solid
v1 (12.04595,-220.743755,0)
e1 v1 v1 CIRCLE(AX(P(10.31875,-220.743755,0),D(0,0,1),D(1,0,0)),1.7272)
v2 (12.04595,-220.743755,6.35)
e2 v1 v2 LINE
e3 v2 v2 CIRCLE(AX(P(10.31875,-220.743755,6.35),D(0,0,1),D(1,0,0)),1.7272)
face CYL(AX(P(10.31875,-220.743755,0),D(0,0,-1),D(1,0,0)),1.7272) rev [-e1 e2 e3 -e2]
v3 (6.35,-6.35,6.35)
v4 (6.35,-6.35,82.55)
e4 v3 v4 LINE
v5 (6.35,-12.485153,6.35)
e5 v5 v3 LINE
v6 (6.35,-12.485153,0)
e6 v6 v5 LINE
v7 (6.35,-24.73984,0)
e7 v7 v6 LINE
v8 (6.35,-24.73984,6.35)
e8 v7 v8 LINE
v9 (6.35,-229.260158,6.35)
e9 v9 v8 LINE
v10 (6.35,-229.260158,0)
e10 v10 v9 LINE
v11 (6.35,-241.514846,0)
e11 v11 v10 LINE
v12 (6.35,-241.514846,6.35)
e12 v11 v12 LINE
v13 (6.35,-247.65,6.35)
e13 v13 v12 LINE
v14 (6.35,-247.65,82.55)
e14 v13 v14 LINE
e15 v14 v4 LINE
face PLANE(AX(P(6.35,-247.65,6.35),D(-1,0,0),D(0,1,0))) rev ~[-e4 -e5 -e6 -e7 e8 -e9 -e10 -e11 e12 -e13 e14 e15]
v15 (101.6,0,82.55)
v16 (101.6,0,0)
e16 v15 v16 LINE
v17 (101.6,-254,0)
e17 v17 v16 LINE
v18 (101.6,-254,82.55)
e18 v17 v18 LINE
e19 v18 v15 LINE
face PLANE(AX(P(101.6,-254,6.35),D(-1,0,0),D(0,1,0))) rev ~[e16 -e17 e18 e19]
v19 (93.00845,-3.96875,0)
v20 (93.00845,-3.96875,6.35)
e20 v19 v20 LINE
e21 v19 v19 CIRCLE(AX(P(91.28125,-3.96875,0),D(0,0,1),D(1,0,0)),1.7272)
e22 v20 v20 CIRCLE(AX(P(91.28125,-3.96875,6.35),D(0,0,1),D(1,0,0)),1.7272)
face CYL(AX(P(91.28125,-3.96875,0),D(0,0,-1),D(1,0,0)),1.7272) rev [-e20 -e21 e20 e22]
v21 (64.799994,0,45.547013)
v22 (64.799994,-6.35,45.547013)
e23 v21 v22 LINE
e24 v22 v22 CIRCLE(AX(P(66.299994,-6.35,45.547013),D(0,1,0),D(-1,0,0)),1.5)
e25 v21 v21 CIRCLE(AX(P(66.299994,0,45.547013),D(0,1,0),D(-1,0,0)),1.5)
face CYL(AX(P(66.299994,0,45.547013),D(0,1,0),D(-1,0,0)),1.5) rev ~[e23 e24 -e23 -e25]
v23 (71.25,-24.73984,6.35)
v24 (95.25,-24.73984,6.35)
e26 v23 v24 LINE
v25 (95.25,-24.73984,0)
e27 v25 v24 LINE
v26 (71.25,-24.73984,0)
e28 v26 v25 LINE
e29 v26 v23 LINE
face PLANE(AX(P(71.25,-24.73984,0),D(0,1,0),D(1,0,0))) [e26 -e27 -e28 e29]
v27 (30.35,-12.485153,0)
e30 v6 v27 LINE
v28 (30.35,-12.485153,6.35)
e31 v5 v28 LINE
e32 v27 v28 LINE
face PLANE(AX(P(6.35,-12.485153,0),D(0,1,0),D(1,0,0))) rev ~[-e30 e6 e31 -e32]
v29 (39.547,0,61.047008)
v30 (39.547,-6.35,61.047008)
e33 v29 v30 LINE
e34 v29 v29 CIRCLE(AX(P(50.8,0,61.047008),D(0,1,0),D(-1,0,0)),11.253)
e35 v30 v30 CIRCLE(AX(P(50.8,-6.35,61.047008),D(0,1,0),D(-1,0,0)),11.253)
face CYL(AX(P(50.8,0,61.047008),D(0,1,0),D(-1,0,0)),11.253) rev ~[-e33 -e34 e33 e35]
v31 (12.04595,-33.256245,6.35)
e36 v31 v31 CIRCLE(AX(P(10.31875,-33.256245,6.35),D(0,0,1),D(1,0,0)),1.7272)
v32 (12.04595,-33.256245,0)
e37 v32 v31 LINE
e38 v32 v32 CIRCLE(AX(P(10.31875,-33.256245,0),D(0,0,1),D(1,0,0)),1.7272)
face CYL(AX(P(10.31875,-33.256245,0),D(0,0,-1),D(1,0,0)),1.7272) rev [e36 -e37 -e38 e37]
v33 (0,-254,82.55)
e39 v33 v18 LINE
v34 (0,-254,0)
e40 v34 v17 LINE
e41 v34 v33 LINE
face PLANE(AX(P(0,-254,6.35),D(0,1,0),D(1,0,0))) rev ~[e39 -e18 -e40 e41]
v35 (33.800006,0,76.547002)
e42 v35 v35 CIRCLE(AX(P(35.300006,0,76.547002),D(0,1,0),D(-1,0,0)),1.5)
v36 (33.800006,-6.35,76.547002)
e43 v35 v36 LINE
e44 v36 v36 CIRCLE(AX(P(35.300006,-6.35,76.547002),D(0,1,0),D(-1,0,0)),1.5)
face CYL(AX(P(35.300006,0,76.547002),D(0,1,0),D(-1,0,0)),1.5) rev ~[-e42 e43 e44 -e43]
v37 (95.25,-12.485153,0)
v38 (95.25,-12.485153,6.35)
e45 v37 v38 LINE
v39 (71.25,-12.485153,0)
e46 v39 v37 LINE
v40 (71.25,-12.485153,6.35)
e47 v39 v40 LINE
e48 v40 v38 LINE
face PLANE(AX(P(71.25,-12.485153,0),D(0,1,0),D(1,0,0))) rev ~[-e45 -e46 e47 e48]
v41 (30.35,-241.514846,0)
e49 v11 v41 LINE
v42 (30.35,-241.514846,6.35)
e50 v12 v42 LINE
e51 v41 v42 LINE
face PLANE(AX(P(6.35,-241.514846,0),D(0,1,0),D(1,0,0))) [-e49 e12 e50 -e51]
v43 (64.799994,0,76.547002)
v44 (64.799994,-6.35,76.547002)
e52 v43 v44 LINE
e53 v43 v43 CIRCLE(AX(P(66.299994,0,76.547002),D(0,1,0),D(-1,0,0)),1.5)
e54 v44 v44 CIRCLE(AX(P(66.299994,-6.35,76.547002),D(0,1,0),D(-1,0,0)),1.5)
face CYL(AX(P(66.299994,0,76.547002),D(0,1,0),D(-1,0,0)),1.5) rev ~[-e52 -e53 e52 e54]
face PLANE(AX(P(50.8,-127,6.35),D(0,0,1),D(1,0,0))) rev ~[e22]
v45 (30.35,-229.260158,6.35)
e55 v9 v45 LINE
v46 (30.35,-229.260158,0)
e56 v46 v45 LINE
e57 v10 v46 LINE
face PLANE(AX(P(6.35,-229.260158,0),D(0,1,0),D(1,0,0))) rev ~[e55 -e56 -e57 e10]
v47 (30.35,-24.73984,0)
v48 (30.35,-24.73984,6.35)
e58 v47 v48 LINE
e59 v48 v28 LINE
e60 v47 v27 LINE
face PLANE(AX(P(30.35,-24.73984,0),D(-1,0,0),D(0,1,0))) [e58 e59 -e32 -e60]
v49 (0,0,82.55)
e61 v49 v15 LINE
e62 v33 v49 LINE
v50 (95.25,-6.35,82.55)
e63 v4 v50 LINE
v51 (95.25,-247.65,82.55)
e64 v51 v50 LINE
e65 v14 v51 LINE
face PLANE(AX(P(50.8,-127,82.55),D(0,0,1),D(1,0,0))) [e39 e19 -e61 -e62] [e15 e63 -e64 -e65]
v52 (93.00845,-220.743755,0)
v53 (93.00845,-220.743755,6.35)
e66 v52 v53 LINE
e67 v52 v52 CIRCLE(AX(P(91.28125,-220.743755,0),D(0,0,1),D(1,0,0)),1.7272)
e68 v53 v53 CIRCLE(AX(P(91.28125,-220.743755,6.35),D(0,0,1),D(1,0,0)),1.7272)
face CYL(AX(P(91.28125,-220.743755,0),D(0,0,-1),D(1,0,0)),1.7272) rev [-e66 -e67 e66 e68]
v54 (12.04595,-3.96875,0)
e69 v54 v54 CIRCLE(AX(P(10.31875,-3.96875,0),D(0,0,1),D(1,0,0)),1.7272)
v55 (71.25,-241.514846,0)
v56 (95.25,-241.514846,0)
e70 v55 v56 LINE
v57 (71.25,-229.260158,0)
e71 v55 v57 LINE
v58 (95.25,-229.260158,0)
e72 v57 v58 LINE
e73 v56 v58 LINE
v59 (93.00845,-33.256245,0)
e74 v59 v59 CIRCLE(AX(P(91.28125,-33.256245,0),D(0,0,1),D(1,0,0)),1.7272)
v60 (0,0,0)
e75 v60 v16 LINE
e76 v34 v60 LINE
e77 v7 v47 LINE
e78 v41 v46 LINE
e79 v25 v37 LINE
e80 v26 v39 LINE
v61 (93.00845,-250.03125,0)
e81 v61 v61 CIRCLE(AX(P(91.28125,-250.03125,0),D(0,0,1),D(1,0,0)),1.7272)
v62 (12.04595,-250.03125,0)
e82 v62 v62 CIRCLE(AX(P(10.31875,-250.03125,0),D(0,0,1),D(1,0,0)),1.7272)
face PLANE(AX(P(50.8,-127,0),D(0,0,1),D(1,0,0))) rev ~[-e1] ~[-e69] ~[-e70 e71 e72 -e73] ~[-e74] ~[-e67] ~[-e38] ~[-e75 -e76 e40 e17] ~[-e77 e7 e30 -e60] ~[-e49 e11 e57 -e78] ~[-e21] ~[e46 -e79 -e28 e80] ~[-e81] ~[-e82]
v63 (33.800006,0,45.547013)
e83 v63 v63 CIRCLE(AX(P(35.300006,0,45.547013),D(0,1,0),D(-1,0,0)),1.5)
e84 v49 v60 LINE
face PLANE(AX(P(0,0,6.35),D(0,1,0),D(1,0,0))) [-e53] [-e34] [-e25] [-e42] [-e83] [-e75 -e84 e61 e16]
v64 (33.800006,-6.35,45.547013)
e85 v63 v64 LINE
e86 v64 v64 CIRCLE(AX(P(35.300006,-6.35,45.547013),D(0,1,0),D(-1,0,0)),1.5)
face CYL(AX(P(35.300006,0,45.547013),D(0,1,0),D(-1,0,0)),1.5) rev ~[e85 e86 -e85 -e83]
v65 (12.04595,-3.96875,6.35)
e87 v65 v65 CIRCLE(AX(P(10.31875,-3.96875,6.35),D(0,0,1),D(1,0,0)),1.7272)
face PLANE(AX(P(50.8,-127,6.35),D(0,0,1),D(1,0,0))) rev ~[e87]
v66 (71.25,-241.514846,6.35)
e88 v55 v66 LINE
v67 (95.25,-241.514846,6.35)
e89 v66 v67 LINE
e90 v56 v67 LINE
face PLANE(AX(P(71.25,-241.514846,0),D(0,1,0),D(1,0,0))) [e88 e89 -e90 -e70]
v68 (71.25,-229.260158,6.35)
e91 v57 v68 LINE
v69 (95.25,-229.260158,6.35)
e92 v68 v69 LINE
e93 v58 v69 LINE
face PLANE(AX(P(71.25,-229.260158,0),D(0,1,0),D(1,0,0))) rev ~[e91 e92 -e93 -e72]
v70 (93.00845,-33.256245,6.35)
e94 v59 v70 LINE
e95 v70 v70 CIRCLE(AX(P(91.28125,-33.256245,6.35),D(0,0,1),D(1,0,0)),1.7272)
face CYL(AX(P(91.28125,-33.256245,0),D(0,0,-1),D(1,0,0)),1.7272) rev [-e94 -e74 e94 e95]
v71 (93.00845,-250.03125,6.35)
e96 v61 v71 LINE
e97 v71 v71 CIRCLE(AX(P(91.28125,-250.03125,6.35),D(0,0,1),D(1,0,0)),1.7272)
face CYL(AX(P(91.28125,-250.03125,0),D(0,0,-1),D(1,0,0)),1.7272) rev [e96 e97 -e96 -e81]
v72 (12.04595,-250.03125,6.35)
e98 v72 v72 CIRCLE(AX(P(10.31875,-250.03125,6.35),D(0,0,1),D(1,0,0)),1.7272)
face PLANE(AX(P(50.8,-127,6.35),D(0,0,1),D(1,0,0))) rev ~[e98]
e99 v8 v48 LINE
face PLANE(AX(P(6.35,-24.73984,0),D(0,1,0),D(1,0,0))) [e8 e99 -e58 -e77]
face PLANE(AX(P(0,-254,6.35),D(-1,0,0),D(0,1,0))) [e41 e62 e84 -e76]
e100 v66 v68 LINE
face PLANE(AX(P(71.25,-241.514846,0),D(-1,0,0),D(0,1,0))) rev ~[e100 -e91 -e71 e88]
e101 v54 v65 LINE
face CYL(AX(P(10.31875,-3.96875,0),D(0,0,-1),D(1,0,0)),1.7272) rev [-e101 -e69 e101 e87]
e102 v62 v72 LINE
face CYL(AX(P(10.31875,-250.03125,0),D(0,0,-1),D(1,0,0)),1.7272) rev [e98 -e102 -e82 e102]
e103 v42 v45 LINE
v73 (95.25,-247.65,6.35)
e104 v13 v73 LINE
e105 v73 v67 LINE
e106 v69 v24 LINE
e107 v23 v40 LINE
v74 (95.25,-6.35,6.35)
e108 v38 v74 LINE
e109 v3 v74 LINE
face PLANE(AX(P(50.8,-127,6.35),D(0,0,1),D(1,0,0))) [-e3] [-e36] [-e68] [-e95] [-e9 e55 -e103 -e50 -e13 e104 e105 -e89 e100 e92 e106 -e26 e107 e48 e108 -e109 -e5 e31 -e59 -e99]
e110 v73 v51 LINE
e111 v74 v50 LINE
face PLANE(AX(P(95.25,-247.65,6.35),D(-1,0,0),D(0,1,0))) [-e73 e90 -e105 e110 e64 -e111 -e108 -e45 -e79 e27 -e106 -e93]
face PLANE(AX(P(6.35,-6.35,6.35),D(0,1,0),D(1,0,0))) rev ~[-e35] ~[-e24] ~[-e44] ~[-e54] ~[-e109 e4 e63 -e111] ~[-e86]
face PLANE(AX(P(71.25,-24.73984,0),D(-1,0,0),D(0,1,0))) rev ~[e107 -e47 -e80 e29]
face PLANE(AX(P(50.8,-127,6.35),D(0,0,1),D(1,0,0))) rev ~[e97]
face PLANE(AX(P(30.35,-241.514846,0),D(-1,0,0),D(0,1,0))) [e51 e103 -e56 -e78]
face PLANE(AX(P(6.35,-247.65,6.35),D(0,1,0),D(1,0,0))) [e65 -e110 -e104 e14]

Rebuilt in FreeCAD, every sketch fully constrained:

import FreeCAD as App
import Part
import Sketcher
from FreeCAD import Vector
Q = App.Units.Quantity


def add_polygon(sketch, points):
    """Adds a closed chain of lines whose ends are joined by coincident constraints."""
    first, n = sketch.GeometryCount, len(points)
    for a, b in zip(points, points[1:] + points[:1]):
        sketch.addGeometry(Part.LineSegment(App.Vector(*a, 0), App.Vector(*b, 0)), False)
    for i in range(n):
        sketch.addConstraint(Sketcher.Constraint("Coincident", first + i, 2, first + (i + 1) % n, 1))

doc = App.newDocument("Part")
body = doc.addObject("PartDesign::Body", "Body")

# Sketch on XY plane
sketch1 = body.newObject("Sketcher::SketchObject", "Sketch")
sketch1.AttachmentSupport = (doc.getObject("XY_Plane"), [""])
sketch1.MapMode = "FlatFace"
add_polygon(sketch1, [(0, 0), (0, -254), (101.6, -254), (101.6, 0)])  # lines 0-3
sketch1.addGeometry(Part.Circle(Vector(10.3, -250, 0), Vector(0, 0, 1), 1.7), False)  # 4
sketch1.addGeometry(Part.Circle(Vector(10.3, -220.7, 0), Vector(0, 0, 1), 1.7), False)  # 5
add_polygon(sketch1, [(30.4, -241.5), (6.3, -241.5), (6.3, -229.3), (30.4, -229.3)])  # lines 6-9
add_polygon(sketch1, [(95.2, -241.5), (71.2, -241.5), (71.2, -229.3), (95.2, -229.3)])  # lines 10-13
sketch1.addGeometry(Part.Circle(Vector(91.3, -250, 0), Vector(0, 0, 1), 1.7), False)  # 14
sketch1.addGeometry(Part.Circle(Vector(91.3, -220.7, 0), Vector(0, 0, 1), 1.7), False)  # 15
sketch1.addGeometry(Part.Circle(Vector(10.3, -33.3, 0), Vector(0, 0, 1), 1.7), False)  # 16
sketch1.addGeometry(Part.Circle(Vector(10.3, -4, 0), Vector(0, 0, 1), 1.7), False)  # 17
add_polygon(sketch1, [(30.4, -24.7), (6.3, -24.7), (6.3, -12.5), (30.4, -12.5)])  # lines 18-21
add_polygon(sketch1, [(95.2, -24.7), (71.2, -24.7), (71.2, -12.5), (95.2, -12.5)])  # lines 22-25
sketch1.addGeometry(Part.Circle(Vector(91.3, -33.3, 0), Vector(0, 0, 1), 1.7), False)  # 26
sketch1.addGeometry(Part.Circle(Vector(91.3, -4, 0), Vector(0, 0, 1), 1.7), False)  # 27
sketch1.addConstraint(Sketcher.Constraint("Vertical", 0))
sketch1.addConstraint(Sketcher.Constraint("Horizontal", 1))
sketch1.addConstraint(Sketcher.Constraint("Vertical", 2))
sketch1.addConstraint(Sketcher.Constraint("Horizontal", 3))
sketch1.addConstraint(Sketcher.Constraint("Horizontal", 6))
sketch1.addConstraint(Sketcher.Constraint("Vertical", 7))
sketch1.addConstraint(Sketcher.Constraint("Horizontal", 8))
sketch1.addConstraint(Sketcher.Constraint("Vertical", 9))
sketch1.addConstraint(Sketcher.Constraint("Horizontal", 10))
sketch1.addConstraint(Sketcher.Constraint("Vertical", 11))
sketch1.addConstraint(Sketcher.Constraint("Horizontal", 12))
sketch1.addConstraint(Sketcher.Constraint("Vertical", 13))
sketch1.addConstraint(Sketcher.Constraint("Horizontal", 18))
sketch1.addConstraint(Sketcher.Constraint("Vertical", 19))
sketch1.addConstraint(Sketcher.Constraint("Horizontal", 20))
sketch1.addConstraint(Sketcher.Constraint("Vertical", 21))
sketch1.addConstraint(Sketcher.Constraint("Horizontal", 22))
sketch1.addConstraint(Sketcher.Constraint("Vertical", 23))
sketch1.addConstraint(Sketcher.Constraint("Horizontal", 24))
sketch1.addConstraint(Sketcher.Constraint("Vertical", 25))
sketch1.addConstraint(Sketcher.Constraint("Coincident", 3, 2, -1, 1))
sketch1.addConstraint(Sketcher.Constraint("Equal", 4, 5))
sketch1.addConstraint(Sketcher.Constraint("Equal", 5, 14))
sketch1.addConstraint(Sketcher.Constraint("Equal", 14, 15))
sketch1.addConstraint(Sketcher.Constraint("Equal", 15, 16))
sketch1.addConstraint(Sketcher.Constraint("Equal", 16, 17))
sketch1.addConstraint(Sketcher.Constraint("Equal", 17, 26))
sketch1.addConstraint(Sketcher.Constraint("Equal", 26, 27))
sketch1.addConstraint(Sketcher.Constraint("Horizontal", 4, 3, 14, 3))
sketch1.addConstraint(Sketcher.Constraint("Horizontal", 5, 3, 15, 3))
sketch1.addConstraint(Sketcher.Constraint("Horizontal", 16, 3, 26, 3))
sketch1.addConstraint(Sketcher.Constraint("Horizontal", 17, 3, 27, 3))
sketch1.addConstraint(Sketcher.Constraint("Horizontal", 9, 2, 10, 2))
sketch1.addConstraint(Sketcher.Constraint("Horizontal", 8, 2, 11, 2))
sketch1.addConstraint(Sketcher.Constraint("Horizontal", 21, 2, 22, 2))
sketch1.addConstraint(Sketcher.Constraint("Horizontal", 20, 2, 23, 2))
sketch1.addConstraint(Sketcher.Constraint("Vertical", 4, 3, 5, 3))
sketch1.addConstraint(Sketcher.Constraint("Vertical", 14, 3, 15, 3))
sketch1.addConstraint(Sketcher.Constraint("Vertical", 5, 3, 16, 3))
sketch1.addConstraint(Sketcher.Constraint("Vertical", 16, 3, 17, 3))
sketch1.addConstraint(Sketcher.Constraint("Vertical", 15, 3, 26, 3))
sketch1.addConstraint(Sketcher.Constraint("Vertical", 26, 3, 27, 3))
sketch1.addConstraint(Sketcher.Constraint("Vertical", 7, 2, 18, 2))
sketch1.addConstraint(Sketcher.Constraint("Vertical", 9, 2, 20, 2))
sketch1.addConstraint(Sketcher.Constraint("Vertical", 11, 2, 22, 2))
sketch1.addConstraint(Sketcher.Constraint("Vertical", 13, 2, 24, 2))
sketch1.addConstraint(Sketcher.Constraint("Equal", 8, 10))
sketch1.addConstraint(Sketcher.Constraint("Equal", 13, 19))
sketch1.addConstraint(Sketcher.Constraint("DistanceX", 1, 1, 1, 2, Q("4 in")))
sketch1.addConstraint(Sketcher.Constraint("DistanceY", 0, 2, 0, 1, Q("10 in")))
sketch1.addConstraint(Sketcher.Constraint("Diameter", 4, Q("0.136 in")))
sketch1.addConstraint(Sketcher.Constraint("DistanceX", -1, 1, 6, 2, Q("0.25 in")))
sketch1.addConstraint(Sketcher.Constraint("DistanceX", -1, 1, 12, 2, Q("3.75 in")))
sketch1.addConstraint(Sketcher.Constraint("DistanceX", -1, 1, 4, 3, Q("0.40625 in")))
sketch1.addConstraint(Sketcher.Constraint("DistanceY", 4, 3, -1, 1, Q("9.84375 in")))
sketch1.addConstraint(Sketcher.Constraint("DistanceX", -1, 1, 14, 3, Q("3.59375 in")))
sketch1.addConstraint(Sketcher.Constraint("DistanceY", 17, 3, -1, 1, Q("0.15625 in")))
sketch1.addConstraint(Sketcher.Constraint("DistanceX", 6, 2, 6, 1, Q("24 mm")))
sketch1.addConstraint(Sketcher.Constraint("DistanceY", 7, 1, 7, 2, Q("12.254687 mm")))
sketch1.addConstraint(Sketcher.Constraint("DistanceY", 7, 2, -1, 1, Q("229.260158 mm")))
sketch1.addConstraint(Sketcher.Constraint("DistanceY", 18, 2, -1, 1, Q("24.73984 mm")))
sketch1.addConstraint(Sketcher.Constraint("DistanceY", 5, 3, 16, 3, Q("187.48751 mm")))
sketch1.addConstraint(Sketcher.Constraint("DistanceY", 6, 2, 5, 3, Q("20.771091 mm")))
pad1 = body.newObject("PartDesign::Pad", "Pad")
pad1.Profile = sketch1
pad1.Length = Q("0.25 in")

# Sketch on XY plane
sketch2 = body.newObject("Sketcher::SketchObject", "Sketch001")
sketch2.AttachmentSupport = (doc.getObject("XY_Plane"), [""])
sketch2.MapMode = "FlatFace"
sketch2.AttachmentOffset = App.Placement(Vector(0, 0, 0.25 * 25.4), App.Rotation())
add_polygon(sketch2, [(0, 0), (0, -254), (102, -254), (102, 0)])  # lines 0-3
add_polygon(sketch2, [(95, -248), (6, -248), (6, -6), (95, -6)])  # lines 4-7
sketch2.addConstraint(Sketcher.Constraint("Vertical", 0))
sketch2.addConstraint(Sketcher.Constraint("Horizontal", 1))
sketch2.addConstraint(Sketcher.Constraint("Vertical", 2))
sketch2.addConstraint(Sketcher.Constraint("Horizontal", 3))
sketch2.addConstraint(Sketcher.Constraint("Horizontal", 4))
sketch2.addConstraint(Sketcher.Constraint("Vertical", 5))
sketch2.addConstraint(Sketcher.Constraint("Horizontal", 6))
sketch2.addConstraint(Sketcher.Constraint("Vertical", 7))
sketch2.addConstraint(Sketcher.Constraint("Coincident", 3, 2, -1, 1))
sketch2.addConstraint(Sketcher.Constraint("DistanceX", 1, 1, 1, 2, Q("4 in")))
sketch2.addConstraint(Sketcher.Constraint("DistanceY", 0, 2, 0, 1, Q("10 in")))
sketch2.addConstraint(Sketcher.Constraint("DistanceX", 4, 2, 4, 1, Q("3.5 in")))
sketch2.addConstraint(Sketcher.Constraint("DistanceY", 5, 1, 5, 2, Q("9.5 in")))
sketch2.addConstraint(Sketcher.Constraint("DistanceX", -1, 1, 4, 2, Q("0.25 in")))
sketch2.addConstraint(Sketcher.Constraint("DistanceY", 4, 2, -1, 1, Q("9.75 in")))
pad2 = body.newObject("PartDesign::Pad", "Pad001")
pad2.Profile = sketch2
pad2.Length = Q("3 in")

# Sketch on XZ plane
sketch3 = body.newObject("Sketcher::SketchObject", "Sketch002")
sketch3.AttachmentSupport = (doc.getObject("XZ_Plane"), [""])
sketch3.MapMode = "FlatFace"
sketch3.addGeometry(Part.Circle(Vector(66.3, 76.5, 0), Vector(0, 0, 1), 1.5), False)
sketch3.addGeometry(Part.Circle(Vector(35.3, 76.5, 0), Vector(0, 0, 1), 1.5), False)
sketch3.addGeometry(Part.Circle(Vector(66.3, 45.5, 0), Vector(0, 0, 1), 1.5), False)
sketch3.addGeometry(Part.Circle(Vector(50.8, 61, 0), Vector(0, 0, 1), 11.3), False)
sketch3.addGeometry(Part.Circle(Vector(35.3, 45.5, 0), Vector(0, 0, 1), 1.5), False)
sketch3.addConstraint(Sketcher.Constraint("Equal", 0, 1))
sketch3.addConstraint(Sketcher.Constraint("Equal", 1, 2))
sketch3.addConstraint(Sketcher.Constraint("Equal", 2, 4))
sketch3.addConstraint(Sketcher.Constraint("Horizontal", 0, 3, 1, 3))
sketch3.addConstraint(Sketcher.Constraint("Horizontal", 2, 3, 4, 3))
sketch3.addConstraint(Sketcher.Constraint("Vertical", 0, 3, 2, 3))
sketch3.addConstraint(Sketcher.Constraint("Vertical", 1, 3, 4, 3))
sketch3.addConstraint(Sketcher.Constraint("DistanceX", -1, 1, 3, 3, Q("2 in")))
sketch3.addConstraint(Sketcher.Constraint("Diameter", 0, Q("3 mm")))
sketch3.addConstraint(Sketcher.Constraint("Diameter", 3, Q("22.506 mm")))
sketch3.addConstraint(Sketcher.Constraint("DistanceY", 2, 3, 0, 3, Q("30.999989 mm")))
sketch3.addConstraint(Sketcher.Constraint("DistanceX", -1, 1, 0, 3, Q("66.299994 mm")))
sketch3.addConstraint(Sketcher.Constraint("DistanceY", -1, 1, 0, 3, Q("76.547002 mm")))
sketch3.addConstraint(Sketcher.Constraint("DistanceX", -1, 1, 1, 3, Q("35.300006 mm")))
sketch3.addConstraint(Sketcher.Constraint("DistanceY", -1, 1, 3, 3, Q("61.047008 mm")))
pocket1 = body.newObject("PartDesign::Pocket", "Pocket")
pocket1.Profile = sketch3
pocket1.Length = Q("0.25 in")
pocket1.Reversed = True

# Sketch on XZ plane
sketch4 = body.newObject("Sketcher::SketchObject", "Sketch003")
sketch4.AttachmentSupport = (doc.getObject("XZ_Plane"), [""])
sketch4.MapMode = "FlatFace"
sketch4.addGeometry(Part.Circle(Vector(66.3, 76.5, 0), Vector(0, 0, 1), 1.5), False)
sketch4.addGeometry(Part.Circle(Vector(35.3, 76.5, 0), Vector(0, 0, 1), 1.5), False)
sketch4.addGeometry(Part.Circle(Vector(66.3, 45.5, 0), Vector(0, 0, 1), 1.5), False)
sketch4.addGeometry(Part.Circle(Vector(50.8, 61, 0), Vector(0, 0, 1), 11.3), False)
sketch4.addGeometry(Part.Circle(Vector(35.3, 45.5, 0), Vector(0, 0, 1), 1.5), False)
sketch4.addConstraint(Sketcher.Constraint("Equal", 0, 1))
sketch4.addConstraint(Sketcher.Constraint("Equal", 1, 2))
sketch4.addConstraint(Sketcher.Constraint("Equal", 2, 4))
sketch4.addConstraint(Sketcher.Constraint("Horizontal", 0, 3, 1, 3))
sketch4.addConstraint(Sketcher.Constraint("Horizontal", 2, 3, 4, 3))
sketch4.addConstraint(Sketcher.Constraint("Vertical", 0, 3, 2, 3))
sketch4.addConstraint(Sketcher.Constraint("Vertical", 1, 3, 4, 3))
sketch4.addConstraint(Sketcher.Constraint("DistanceX", -1, 1, 3, 3, Q("2 in")))
sketch4.addConstraint(Sketcher.Constraint("Diameter", 0, Q("3 mm")))
sketch4.addConstraint(Sketcher.Constraint("Diameter", 3, Q("22.506 mm")))
sketch4.addConstraint(Sketcher.Constraint("DistanceY", 2, 3, 0, 3, Q("30.999989 mm")))
sketch4.addConstraint(Sketcher.Constraint("DistanceX", -1, 1, 0, 3, Q("66.299994 mm")))
sketch4.addConstraint(Sketcher.Constraint("DistanceY", -1, 1, 0, 3, Q("76.547002 mm")))
sketch4.addConstraint(Sketcher.Constraint("DistanceX", -1, 1, 1, 3, Q("35.300006 mm")))
sketch4.addConstraint(Sketcher.Constraint("DistanceY", -1, 1, 3, 3, Q("61.047008 mm")))
pocket2 = body.newObject("PartDesign::Pocket", "Pocket001")
pocket2.Profile = sketch4
pocket2.Length = Q("0.25 in")
pocket2.Reversed = True

doc.recompute()
